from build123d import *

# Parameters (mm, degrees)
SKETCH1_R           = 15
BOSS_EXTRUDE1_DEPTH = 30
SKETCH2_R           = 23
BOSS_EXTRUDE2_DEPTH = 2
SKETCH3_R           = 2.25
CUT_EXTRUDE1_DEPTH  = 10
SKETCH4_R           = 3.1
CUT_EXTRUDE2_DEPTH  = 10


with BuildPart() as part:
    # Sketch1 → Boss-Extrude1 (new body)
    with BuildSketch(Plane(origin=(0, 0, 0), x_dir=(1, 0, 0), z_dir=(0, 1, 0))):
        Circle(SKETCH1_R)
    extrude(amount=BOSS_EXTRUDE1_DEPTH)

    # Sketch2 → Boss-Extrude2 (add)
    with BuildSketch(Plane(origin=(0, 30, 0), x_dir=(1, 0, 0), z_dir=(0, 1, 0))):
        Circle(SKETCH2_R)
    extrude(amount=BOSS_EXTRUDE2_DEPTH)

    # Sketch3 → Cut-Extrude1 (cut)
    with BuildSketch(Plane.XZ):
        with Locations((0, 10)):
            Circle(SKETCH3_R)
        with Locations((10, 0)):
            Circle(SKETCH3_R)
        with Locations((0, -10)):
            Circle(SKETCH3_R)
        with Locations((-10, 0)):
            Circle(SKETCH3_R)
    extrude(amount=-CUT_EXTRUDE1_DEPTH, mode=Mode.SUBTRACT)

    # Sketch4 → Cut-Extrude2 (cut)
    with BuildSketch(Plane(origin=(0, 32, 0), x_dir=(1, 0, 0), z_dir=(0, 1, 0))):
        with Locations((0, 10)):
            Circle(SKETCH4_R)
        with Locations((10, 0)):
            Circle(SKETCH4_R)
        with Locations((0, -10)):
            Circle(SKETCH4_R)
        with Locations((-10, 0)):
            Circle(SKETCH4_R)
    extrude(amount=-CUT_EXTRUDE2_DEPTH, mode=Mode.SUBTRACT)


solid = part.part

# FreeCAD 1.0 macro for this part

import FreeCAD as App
import Part
import Sketcher

doc = App.newDocument("Part")
body = doc.addObject("PartDesign::Body", "Body")

# Sketch on XZ plane
sketch1 = body.newObject("Sketcher::SketchObject", "Sketch")
sketch1.AttachmentSupport = (doc.getObject("XZ_Plane"), [""])
sketch1.MapMode = "FlatFace"
sketch1.addGeometry(Part.Circle(App.Vector(0, 0, 0), App.Vector(0, 0, 1), 15), False)
sketch1.addConstraint([
    Sketcher.Constraint("Coincident", 0, 3, -1, 1),
    Sketcher.Constraint("Diameter", 0, 30.0),
])
pad1 = body.newObject("PartDesign::Pad", "Pad")
pad1.Profile = sketch1
pad1.Length = 30
pad1.Reversed = True

# Sketch on XZ plane
sketch2 = body.newObject("Sketcher::SketchObject", "Sketch001")
sketch2.AttachmentSupport = (doc.getObject("XZ_Plane"), [""])
sketch2.MapMode = "FlatFace"
sketch2.AttachmentOffset = App.Placement(App.Vector(0, 0, -30), App.Rotation())
sketch2.addGeometry(Part.Circle(App.Vector(0, 0, 0), App.Vector(0, 0, 1), 23), False)
sketch2.addConstraint([
    Sketcher.Constraint("Coincident", 0, 3, -1, 1),
    Sketcher.Constraint("Diameter", 0, 46.0),
])
pad2 = body.newObject("PartDesign::Pad", "Pad001")
pad2.Profile = sketch2
pad2.Length = 2
pad2.Reversed = True

# Sketch on XZ plane
sketch3 = body.newObject("Sketcher::SketchObject", "Sketch002")
sketch3.AttachmentSupport = (doc.getObject("XZ_Plane"), [""])
sketch3.MapMode = "FlatFace"
sketch3.addGeometry([
    Part.Circle(App.Vector(0, 10, 0), App.Vector(0, 0, 1), 2.25),
    Part.Circle(App.Vector(10, 0, 0), App.Vector(0, 0, 1), 2.25),
    Part.Circle(App.Vector(0, -10, 0), App.Vector(0, 0, 1), 2.25),
    Part.Circle(App.Vector(-10, 0, 0), App.Vector(0, 0, 1), 2.25),
], False)
sketch3.addConstraint([
    Sketcher.Constraint("Equal", 0, 1),
    Sketcher.Constraint("Equal", 1, 2),
    Sketcher.Constraint("Equal", 2, 3),
    Sketcher.Constraint("Symmetric", 0, 3, 2, 3, -1, 1),
    Sketcher.Constraint("Symmetric", 1, 3, 3, 3, -1, 1),
    Sketcher.Constraint("PointOnObject", 0, 3, -2),
    Sketcher.Constraint("PointOnObject", 1, 3, -1),
    Sketcher.Constraint("Diameter", 0, 4.5),
    Sketcher.Constraint("DistanceY", -1, 1, 0, 3, 10.0),
    Sketcher.Constraint("DistanceX", -1, 1, 1, 3, 10.0),
])
pocket1 = body.newObject("PartDesign::Pocket", "Pocket")
pocket1.Profile = sketch3
pocket1.Length = 10

# Sketch on XZ plane
sketch4 = body.newObject("Sketcher::SketchObject", "Sketch003")
sketch4.AttachmentSupport = (doc.getObject("XZ_Plane"), [""])
sketch4.MapMode = "FlatFace"
sketch4.AttachmentOffset = App.Placement(App.Vector(0, 0, -32), App.Rotation())
sketch4.addGeometry([
    Part.Circle(App.Vector(0, -10, 0), App.Vector(0, 0, 1), 3.1),
    Part.Circle(App.Vector(10, 0, 0), App.Vector(0, 0, 1), 3.1),
    Part.Circle(App.Vector(0, 10, 0), App.Vector(0, 0, 1), 3.1),
    Part.Circle(App.Vector(-10, 0, 0), App.Vector(0, 0, 1), 3.1),
], False)
sketch4.addConstraint([
    Sketcher.Constraint("Equal", 0, 1),
    Sketcher.Constraint("Equal", 1, 2),
    Sketcher.Constraint("Equal", 2, 3),
    Sketcher.Constraint("Symmetric", 0, 3, 2, 3, -1, 1),
    Sketcher.Constraint("Symmetric", 1, 3, 3, 3, -1, 1),
    Sketcher.Constraint("PointOnObject", 0, 3, -2),
    Sketcher.Constraint("PointOnObject", 1, 3, -1),
    Sketcher.Constraint("Diameter", 0, 6.2),
    Sketcher.Constraint("DistanceY", 0, 3, -1, 1, 10.0),
    Sketcher.Constraint("DistanceX", -1, 1, 1, 3, 10.0),
])
pocket2 = body.newObject("PartDesign::Pocket", "Pocket001")
pocket2.Profile = sketch4
pocket2.Length = 10
pocket2.Reversed = True

doc.recompute()
